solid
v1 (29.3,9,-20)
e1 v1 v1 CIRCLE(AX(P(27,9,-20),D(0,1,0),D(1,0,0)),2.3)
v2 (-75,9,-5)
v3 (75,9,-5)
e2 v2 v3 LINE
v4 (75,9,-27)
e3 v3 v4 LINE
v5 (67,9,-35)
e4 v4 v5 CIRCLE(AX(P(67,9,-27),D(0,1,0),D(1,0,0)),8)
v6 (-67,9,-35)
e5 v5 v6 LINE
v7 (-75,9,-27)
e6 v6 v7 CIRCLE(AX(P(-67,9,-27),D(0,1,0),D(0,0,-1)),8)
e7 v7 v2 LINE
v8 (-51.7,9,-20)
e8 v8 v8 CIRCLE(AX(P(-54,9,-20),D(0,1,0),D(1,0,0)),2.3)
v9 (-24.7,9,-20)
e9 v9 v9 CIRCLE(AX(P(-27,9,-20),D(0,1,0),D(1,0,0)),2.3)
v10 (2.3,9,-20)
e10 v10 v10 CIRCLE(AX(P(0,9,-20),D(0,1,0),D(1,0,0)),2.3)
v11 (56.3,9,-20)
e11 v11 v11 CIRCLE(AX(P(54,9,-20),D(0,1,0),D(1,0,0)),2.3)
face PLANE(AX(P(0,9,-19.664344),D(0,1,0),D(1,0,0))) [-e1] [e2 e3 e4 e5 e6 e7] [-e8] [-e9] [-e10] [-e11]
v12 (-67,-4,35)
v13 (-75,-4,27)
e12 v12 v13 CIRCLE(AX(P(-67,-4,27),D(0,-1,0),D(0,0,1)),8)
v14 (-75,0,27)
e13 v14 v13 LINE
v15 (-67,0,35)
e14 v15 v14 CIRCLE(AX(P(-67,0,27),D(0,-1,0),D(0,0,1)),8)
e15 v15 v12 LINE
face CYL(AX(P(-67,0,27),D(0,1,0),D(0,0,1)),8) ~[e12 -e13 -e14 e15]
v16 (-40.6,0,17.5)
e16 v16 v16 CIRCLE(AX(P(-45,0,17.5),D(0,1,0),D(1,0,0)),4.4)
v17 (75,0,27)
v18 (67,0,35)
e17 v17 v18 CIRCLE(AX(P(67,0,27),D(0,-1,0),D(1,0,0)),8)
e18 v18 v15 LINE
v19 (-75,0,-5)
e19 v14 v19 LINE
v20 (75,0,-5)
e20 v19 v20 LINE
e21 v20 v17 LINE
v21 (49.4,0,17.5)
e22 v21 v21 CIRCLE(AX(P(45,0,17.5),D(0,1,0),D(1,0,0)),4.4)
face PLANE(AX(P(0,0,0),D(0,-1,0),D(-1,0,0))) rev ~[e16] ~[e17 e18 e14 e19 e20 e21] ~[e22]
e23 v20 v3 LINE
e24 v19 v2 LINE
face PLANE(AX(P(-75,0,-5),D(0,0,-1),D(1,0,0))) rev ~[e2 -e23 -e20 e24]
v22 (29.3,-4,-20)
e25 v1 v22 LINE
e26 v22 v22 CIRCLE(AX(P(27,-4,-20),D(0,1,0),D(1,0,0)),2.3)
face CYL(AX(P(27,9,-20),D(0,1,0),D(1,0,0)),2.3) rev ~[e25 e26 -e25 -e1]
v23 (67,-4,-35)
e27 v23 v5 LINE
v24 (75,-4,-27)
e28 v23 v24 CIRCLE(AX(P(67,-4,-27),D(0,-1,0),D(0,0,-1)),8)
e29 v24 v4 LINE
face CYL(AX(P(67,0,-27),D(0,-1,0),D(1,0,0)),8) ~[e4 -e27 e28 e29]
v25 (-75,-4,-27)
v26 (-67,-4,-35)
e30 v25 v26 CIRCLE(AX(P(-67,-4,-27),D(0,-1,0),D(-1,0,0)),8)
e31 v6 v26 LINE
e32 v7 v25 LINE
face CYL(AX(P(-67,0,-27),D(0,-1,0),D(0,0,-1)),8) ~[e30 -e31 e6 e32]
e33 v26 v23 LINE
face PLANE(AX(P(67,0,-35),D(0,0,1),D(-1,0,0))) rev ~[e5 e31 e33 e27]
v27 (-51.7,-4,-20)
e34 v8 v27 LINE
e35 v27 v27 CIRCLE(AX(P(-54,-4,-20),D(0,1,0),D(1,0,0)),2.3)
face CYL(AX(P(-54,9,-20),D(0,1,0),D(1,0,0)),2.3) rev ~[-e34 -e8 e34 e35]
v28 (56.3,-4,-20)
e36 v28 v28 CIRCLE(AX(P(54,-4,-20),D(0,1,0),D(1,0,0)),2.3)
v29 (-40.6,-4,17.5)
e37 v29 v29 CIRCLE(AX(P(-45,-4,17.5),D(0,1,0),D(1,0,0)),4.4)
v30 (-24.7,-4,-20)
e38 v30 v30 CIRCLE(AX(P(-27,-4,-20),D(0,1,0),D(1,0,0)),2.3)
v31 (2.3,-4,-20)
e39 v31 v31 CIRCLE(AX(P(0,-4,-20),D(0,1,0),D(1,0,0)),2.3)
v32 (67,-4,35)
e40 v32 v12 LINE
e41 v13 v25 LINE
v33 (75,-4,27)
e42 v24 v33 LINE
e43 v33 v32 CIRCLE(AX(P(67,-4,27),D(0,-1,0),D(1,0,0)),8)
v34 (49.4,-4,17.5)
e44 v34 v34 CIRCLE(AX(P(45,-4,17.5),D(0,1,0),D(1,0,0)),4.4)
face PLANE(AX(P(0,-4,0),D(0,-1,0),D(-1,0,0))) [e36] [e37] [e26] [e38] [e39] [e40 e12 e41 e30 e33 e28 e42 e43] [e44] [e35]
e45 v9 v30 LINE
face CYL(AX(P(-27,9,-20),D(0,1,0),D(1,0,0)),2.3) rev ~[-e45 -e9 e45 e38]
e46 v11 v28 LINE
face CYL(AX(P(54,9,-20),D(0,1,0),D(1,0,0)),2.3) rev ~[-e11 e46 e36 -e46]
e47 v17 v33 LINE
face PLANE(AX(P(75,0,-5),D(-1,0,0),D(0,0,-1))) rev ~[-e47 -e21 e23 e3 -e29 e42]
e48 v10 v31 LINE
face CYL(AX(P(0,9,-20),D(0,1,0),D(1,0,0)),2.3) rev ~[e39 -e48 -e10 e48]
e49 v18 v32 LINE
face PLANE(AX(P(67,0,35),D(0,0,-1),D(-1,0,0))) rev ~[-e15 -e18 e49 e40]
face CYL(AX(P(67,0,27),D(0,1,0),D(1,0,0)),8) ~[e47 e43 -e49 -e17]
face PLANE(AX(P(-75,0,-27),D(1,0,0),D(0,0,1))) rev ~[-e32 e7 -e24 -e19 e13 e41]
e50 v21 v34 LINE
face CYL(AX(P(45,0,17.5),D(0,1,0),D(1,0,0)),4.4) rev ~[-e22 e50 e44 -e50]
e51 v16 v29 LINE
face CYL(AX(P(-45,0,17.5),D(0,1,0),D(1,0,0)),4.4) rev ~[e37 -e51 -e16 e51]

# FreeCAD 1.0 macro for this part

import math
import FreeCAD as App
import Part
import Sketcher

V = App.Vector

doc = App.newDocument("Part")
body = doc.addObject("PartDesign::Body", "Body")

sketch1 = doc.addObject("Sketcher::SketchObject", "Sketch")
body.addObject(sketch1)
sketch1.AttachmentSupport = (doc.XZ_Plane, [""])
sketch1.MapMode = "FlatFace"
sketch1.addGeometry(Part.LineSegment(V(67, -35, 0), V(-67, -35, 0)), False)
sketch1.addGeometry(Part.ArcOfCircle(Part.Circle(V(-67, -27, 0), V(0, 0, 1), 8), math.radians(-180), math.radians(-90)), False)
sketch1.addGeometry(Part.LineSegment(V(-75, -27, 0), V(-75, 27, 0)), False)
sketch1.addGeometry(Part.ArcOfCircle(Part.Circle(V(-67, 27, 0), V(0, 0, 1), 8), math.radians(90), math.radians(180)), False)
sketch1.addGeometry(Part.LineSegment(V(-67, 35, 0), V(67, 35, 0)), False)
sketch1.addGeometry(Part.ArcOfCircle(Part.Circle(V(67, 27, 0), V(0, 0, 1), 8), math.radians(0), math.radians(90)), False)
sketch1.addGeometry(Part.LineSegment(V(75, 27, 0), V(75, -27, 0)), False)
sketch1.addGeometry(Part.ArcOfCircle(Part.Circle(V(67, -27, 0), V(0, 0, 1), 8), math.radians(-90), math.radians(0)), False)
sketch1.addGeometry(Part.Circle(V(45, 17.5, 0), V(0, 0, 1), 4.4), False)
sketch1.addGeometry(Part.Circle(V(-45, 17.5, 0), V(0, 0, 1), 4.4), False)
sketch1.addConstraint(Sketcher.Constraint("Tangent", 0, 2, 1, 2))
sketch1.addConstraint(Sketcher.Constraint("Tangent", 1, 1, 2, 1))
sketch1.addConstraint(Sketcher.Constraint("Tangent", 2, 2, 3, 2))
sketch1.addConstraint(Sketcher.Constraint("Tangent", 3, 1, 4, 1))
sketch1.addConstraint(Sketcher.Constraint("Tangent", 4, 2, 5, 2))
sketch1.addConstraint(Sketcher.Constraint("Tangent", 5, 1, 6, 1))
sketch1.addConstraint(Sketcher.Constraint("Tangent", 6, 2, 7, 2))
sketch1.addConstraint(Sketcher.Constraint("Tangent", 7, 1, 0, 1))
sketch1.addConstraint(Sketcher.Constraint("Horizontal", 0))
sketch1.addConstraint(Sketcher.Constraint("Vertical", 2))
sketch1.addConstraint(Sketcher.Constraint("Horizontal", 4))
sketch1.addConstraint(Sketcher.Constraint("Vertical", 6))
sketch1.addConstraint(Sketcher.Constraint("Equal", 1, 3))
sketch1.addConstraint(Sketcher.Constraint("Equal", 3, 5))
sketch1.addConstraint(Sketcher.Constraint("Equal", 5, 7))
sketch1.addConstraint(Sketcher.Constraint("Equal", 8, 9))
sketch1.addConstraint(Sketcher.Constraint("Symmetric", 1, 3, 5, 3, -1, 1))
sketch1.addConstraint(Sketcher.Constraint("Symmetric", 8, 3, 9, 3, -2))
sketch1.addConstraint(Sketcher.Constraint("Radius", 1, 8.0))
sketch1.addConstraint(Sketcher.Constraint("Diameter", 8, 8.8))
sketch1.addConstraint(Sketcher.Constraint("DistanceX", 0, 2, 0, 1, 134.0))
sketch1.addConstraint(Sketcher.Constraint("DistanceY", 2, 1, 2, 2, 54.0))
sketch1.addConstraint(Sketcher.Constraint("DistanceX", -1, 1, 8, 3, 45.0))
sketch1.addConstraint(Sketcher.Constraint("DistanceY", -1, 1, 8, 3, 17.5))
pad1 = doc.addObject("PartDesign::Pad", "Pad")
body.addObject(pad1)
pad1.Profile = sketch1
pad1.Length = 4

sketch2 = doc.addObject("Sketcher::SketchObject", "Sketch001")
body.addObject(sketch2)
sketch2.AttachmentSupport = (doc.XZ_Plane, [""])
sketch2.MapMode = "FlatFace"
sketch2.addGeometry(Part.LineSegment(V(-75, -5, 0), V(75, -5, 0)), False)
sketch2.addGeometry(Part.LineSegment(V(75, -5, 0), V(75, -27, 0)), False)
sketch2.addGeometry(Part.ArcOfCircle(Part.Circle(V(67, -27, 0), V(0, 0, 1), 8), math.radians(-90), math.radians(0)), False)
sketch2.addGeometry(Part.LineSegment(V(67, -35, 0), V(-67, -35, 0)), False)
sketch2.addGeometry(Part.ArcOfCircle(Part.Circle(V(-67, -27, 0), V(0, 0, 1), 8), math.radians(-180), math.radians(-90)), False)
sketch2.addGeometry(Part.LineSegment(V(-75, -27, 0), V(-75, -5, 0)), False)
sketch2.addConstraint(Sketcher.Constraint("Coincident", 0, 2, 1, 1))
sketch2.addConstraint(Sketcher.Constraint("Tangent", 1, 2, 2, 2))
sketch2.addConstraint(Sketcher.Constraint("Tangent", 2, 1, 3, 1))
sketch2.addConstraint(Sketcher.Constraint("Tangent", 3, 2, 4, 2))
sketch2.addConstraint(Sketcher.Constraint("Tangent", 4, 1, 5, 1))
sketch2.addConstraint(Sketcher.Constraint("Coincident", 5, 2, 0, 1))
sketch2.addConstraint(Sketcher.Constraint("Horizontal", 0))
sketch2.addConstraint(Sketcher.Constraint("Vertical", 1))
sketch2.addConstraint(Sketcher.Constraint("Horizontal", 3))
sketch2.addConstraint(Sketcher.Constraint("Vertical", 5))
sketch2.addConstraint(Sketcher.Constraint("Equal", 2, 4))
sketch2.addConstraint(Sketcher.Constraint("Radius", 2, 8.0))
sketch2.addConstraint(Sketcher.Constraint("DistanceX", 0, 1, 0, 2, 150.0))
sketch2.addConstraint(Sketcher.Constraint("DistanceY", 1, 2, 1, 1, 22.0))
sketch2.addConstraint(Sketcher.Constraint("DistanceX", -1, 1, 2, 3, 67.0))
sketch2.addConstraint(Sketcher.Constraint("DistanceY", 2, 3, -1, 1, 27.0))
pad2 = doc.addObject("PartDesign::Pad", "Pad001")
body.addObject(pad2)
pad2.Profile = sketch2
pad2.Length = 9
pad2.Reversed = True

sketch3 = doc.addObject("Sketcher::SketchObject", "Sketch002")
body.addObject(sketch3)
sketch3.AttachmentSupport = (doc.XZ_Plane, [""])
sketch3.MapMode = "FlatFace"
sketch3.AttachmentOffset = App.Placement(V(0, 0, -9), App.Rotation())
sketch3.addGeometry(Part.Circle(V(-54, -20, 0), V(0, 0, 1), 2.3), False)
sketch3.addGeometry(Part.Circle(V(-27, -20, 0), V(0, 0, 1), 2.3), False)
sketch3.addGeometry(Part.Circle(V(0, -20, 0), V(0, 0, 1), 2.3), False)
sketch3.addGeometry(Part.Circle(V(27, -20, 0), V(0, 0, 1), 2.3), False)
sketch3.addGeometry(Part.Circle(V(54, -20, 0), V(0, 0, 1), 2.3), False)
sketch3.addConstraint(Sketcher.Constraint("Equal", 0, 1))
sketch3.addConstraint(Sketcher.Constraint("Equal", 1, 2))
sketch3.addConstraint(Sketcher.Constraint("Equal", 2, 3))
sketch3.addConstraint(Sketcher.Constraint("Equal", 3, 4))
sketch3.addConstraint(Sketcher.Constraint("Symmetric", 1, 3, 3, 3, -2))
sketch3.addConstraint(Sketcher.Constraint("Symmetric", 0, 3, 4, 3, -2))
sketch3.addConstraint(Sketcher.Constraint("PointOnObject", 2, 3, -2))
sketch3.addConstraint(Sketcher.Constraint("Horizontal", 0, 3, 1, 3))
sketch3.addConstraint(Sketcher.Constraint("Horizontal", 1, 3, 2, 3))
sketch3.addConstraint(Sketcher.Constraint("Diameter", 0, 4.6))
sketch3.addConstraint(Sketcher.Constraint("DistanceX", 0, 3, -1, 1, 54.0))
sketch3.addConstraint(Sketcher.Constraint("DistanceY", 0, 3, -1, 1, 20.0))
sketch3.addConstraint(Sketcher.Constraint("DistanceX", 1, 3, -1, 1, 27.0))
pocket1 = doc.addObject("PartDesign::Pocket", "Pocket")
body.addObject(pocket1)
pocket1.Profile = sketch3
pocket1.Length = 13
pocket1.Reversed = True

doc.recompute()
